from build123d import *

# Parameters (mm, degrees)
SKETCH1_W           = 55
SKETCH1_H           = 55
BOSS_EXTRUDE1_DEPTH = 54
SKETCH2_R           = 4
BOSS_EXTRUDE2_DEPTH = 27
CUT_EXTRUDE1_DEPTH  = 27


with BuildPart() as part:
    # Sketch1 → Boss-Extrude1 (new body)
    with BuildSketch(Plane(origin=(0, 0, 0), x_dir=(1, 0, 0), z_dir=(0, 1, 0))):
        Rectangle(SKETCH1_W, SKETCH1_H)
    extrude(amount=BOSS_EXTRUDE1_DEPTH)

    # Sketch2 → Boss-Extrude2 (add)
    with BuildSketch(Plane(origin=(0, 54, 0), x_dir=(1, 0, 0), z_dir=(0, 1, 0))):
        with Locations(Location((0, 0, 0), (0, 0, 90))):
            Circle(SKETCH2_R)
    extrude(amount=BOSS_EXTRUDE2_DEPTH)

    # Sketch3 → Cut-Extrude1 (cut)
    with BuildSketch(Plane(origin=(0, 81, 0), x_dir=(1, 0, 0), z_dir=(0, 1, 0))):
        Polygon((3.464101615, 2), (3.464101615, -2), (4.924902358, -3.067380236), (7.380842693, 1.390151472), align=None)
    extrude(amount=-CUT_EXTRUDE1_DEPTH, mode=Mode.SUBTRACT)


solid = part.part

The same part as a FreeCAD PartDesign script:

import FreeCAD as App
import Part
import Sketcher
Q = App.Units.Quantity

doc = App.newDocument("Part")
body = doc.addObject("PartDesign::Body", "Body")

sketch1 = body.newObject("Sketcher::SketchObject", "Sketch")
sketch1.AttachmentSupport = (doc.getObject("XZ_Plane"), [""])
sketch1.MapMode = "FlatFace"
sketch1.addGeometry([
    Part.LineSegment(App.Vector(-28, -28, 0), App.Vector(-28, 28, 0)),
    Part.LineSegment(App.Vector(-28, 28, 0), App.Vector(28, 28, 0)),
    Part.LineSegment(App.Vector(28, 28, 0), App.Vector(28, -28, 0)),
    Part.LineSegment(App.Vector(28, -28, 0), App.Vector(-28, -28, 0)),
], False)
sketch1.addConstraint([
    Sketcher.Constraint("Coincident", 0, 2, 1, 1),
    Sketcher.Constraint("Coincident", 1, 2, 2, 1),
    Sketcher.Constraint("Coincident", 2, 2, 3, 1),
    Sketcher.Constraint("Coincident", 3, 2, 0, 1),
    Sketcher.Constraint("Vertical", 0),
    Sketcher.Constraint("Horizontal", 1),
    Sketcher.Constraint("Vertical", 2),
    Sketcher.Constraint("Horizontal", 3),
    Sketcher.Constraint("Symmetric", 0, 2, 2, 2, -1, 1),
    Sketcher.Constraint("Equal", 3, 0),
    Sketcher.Constraint("DistanceX", 1, 1, 1, 2, Q("55 mm")),
])
pad1 = body.newObject("PartDesign::Pad", "Pad")
pad1.Profile = sketch1
pad1.Length = 54
pad1.Reversed = True

sketch2 = body.newObject("Sketcher::SketchObject", "Sketch001")
sketch2.AttachmentSupport = (doc.getObject("XZ_Plane"), [""])
sketch2.MapMode = "FlatFace"
sketch2.AttachmentOffset = App.Placement(App.Vector(0, 0, -54), App.Rotation())
sketch2.addGeometry(Part.Circle(App.Vector(0, 0, 0), App.Vector(0, 0, 1), 4), False)
sketch2.addConstraint([
    Sketcher.Constraint("Coincident", 0, 3, -1, 1),
    Sketcher.Constraint("Diameter", 0, Q("8 mm")),
])
pad2 = body.newObject("PartDesign::Pad", "Pad001")
pad2.Profile = sketch2
pad2.Length = 27
pad2.Reversed = True

sketch3 = body.newObject("Sketcher::SketchObject", "Sketch002")
sketch3.AttachmentSupport = (doc.getObject("XZ_Plane"), [""])
sketch3.MapMode = "FlatFace"
sketch3.AttachmentOffset = App.Placement(App.Vector(0, 0, -81), App.Rotation())
sketch3.addGeometry([
    Part.LineSegment(App.Vector(3.5, -2, 0), App.Vector(3.5, 2, 0)),
    Part.LineSegment(App.Vector(3.5, 2, 0), App.Vector(4.9, 3.1, 0)),
    Part.LineSegment(App.Vector(4.9, 3.1, 0), App.Vector(7.4, -1.4, 0)),
    Part.LineSegment(App.Vector(7.4, -1.4, 0), App.Vector(3.5, -2, 0)),
], False)
sketch3.addConstraint([
    Sketcher.Constraint("Coincident", 0, 2, 1, 1),
    Sketcher.Constraint("Coincident", 1, 2, 2, 1),
    Sketcher.Constraint("Coincident", 2, 2, 3, 1),
    Sketcher.Constraint("Coincident", 3, 2, 0, 1),
    Sketcher.Constraint("Vertical", 0),
    Sketcher.Constraint("DistanceY", 0, 1, 0, 2, Q("4 mm")),
    Sketcher.Constraint("DistanceY", -1, 1, 0, 2, Q("2 mm")),
    Sketcher.Constraint("DistanceX", -1, 1, 0, 2, Q("3.464102 mm")),
    Sketcher.Constraint("DistanceX", 0, 2, 1, 2, Q("1.460801 mm")),
    Sketcher.Constraint("Distance", 1, Q("1.80921 mm")),
    Sketcher.Constraint("DistanceY", 2, 2, -1, 1, Q("1.390151 mm")),
    Sketcher.Constraint("DistanceX", 1, 2, 2, 2, Q("2.45594 mm")),
])
pocket1 = body.newObject("PartDesign::Pocket", "Pocket")
pocket1.Profile = sketch3
pocket1.Length = 27
pocket1.Reversed = True

doc.recompute()
